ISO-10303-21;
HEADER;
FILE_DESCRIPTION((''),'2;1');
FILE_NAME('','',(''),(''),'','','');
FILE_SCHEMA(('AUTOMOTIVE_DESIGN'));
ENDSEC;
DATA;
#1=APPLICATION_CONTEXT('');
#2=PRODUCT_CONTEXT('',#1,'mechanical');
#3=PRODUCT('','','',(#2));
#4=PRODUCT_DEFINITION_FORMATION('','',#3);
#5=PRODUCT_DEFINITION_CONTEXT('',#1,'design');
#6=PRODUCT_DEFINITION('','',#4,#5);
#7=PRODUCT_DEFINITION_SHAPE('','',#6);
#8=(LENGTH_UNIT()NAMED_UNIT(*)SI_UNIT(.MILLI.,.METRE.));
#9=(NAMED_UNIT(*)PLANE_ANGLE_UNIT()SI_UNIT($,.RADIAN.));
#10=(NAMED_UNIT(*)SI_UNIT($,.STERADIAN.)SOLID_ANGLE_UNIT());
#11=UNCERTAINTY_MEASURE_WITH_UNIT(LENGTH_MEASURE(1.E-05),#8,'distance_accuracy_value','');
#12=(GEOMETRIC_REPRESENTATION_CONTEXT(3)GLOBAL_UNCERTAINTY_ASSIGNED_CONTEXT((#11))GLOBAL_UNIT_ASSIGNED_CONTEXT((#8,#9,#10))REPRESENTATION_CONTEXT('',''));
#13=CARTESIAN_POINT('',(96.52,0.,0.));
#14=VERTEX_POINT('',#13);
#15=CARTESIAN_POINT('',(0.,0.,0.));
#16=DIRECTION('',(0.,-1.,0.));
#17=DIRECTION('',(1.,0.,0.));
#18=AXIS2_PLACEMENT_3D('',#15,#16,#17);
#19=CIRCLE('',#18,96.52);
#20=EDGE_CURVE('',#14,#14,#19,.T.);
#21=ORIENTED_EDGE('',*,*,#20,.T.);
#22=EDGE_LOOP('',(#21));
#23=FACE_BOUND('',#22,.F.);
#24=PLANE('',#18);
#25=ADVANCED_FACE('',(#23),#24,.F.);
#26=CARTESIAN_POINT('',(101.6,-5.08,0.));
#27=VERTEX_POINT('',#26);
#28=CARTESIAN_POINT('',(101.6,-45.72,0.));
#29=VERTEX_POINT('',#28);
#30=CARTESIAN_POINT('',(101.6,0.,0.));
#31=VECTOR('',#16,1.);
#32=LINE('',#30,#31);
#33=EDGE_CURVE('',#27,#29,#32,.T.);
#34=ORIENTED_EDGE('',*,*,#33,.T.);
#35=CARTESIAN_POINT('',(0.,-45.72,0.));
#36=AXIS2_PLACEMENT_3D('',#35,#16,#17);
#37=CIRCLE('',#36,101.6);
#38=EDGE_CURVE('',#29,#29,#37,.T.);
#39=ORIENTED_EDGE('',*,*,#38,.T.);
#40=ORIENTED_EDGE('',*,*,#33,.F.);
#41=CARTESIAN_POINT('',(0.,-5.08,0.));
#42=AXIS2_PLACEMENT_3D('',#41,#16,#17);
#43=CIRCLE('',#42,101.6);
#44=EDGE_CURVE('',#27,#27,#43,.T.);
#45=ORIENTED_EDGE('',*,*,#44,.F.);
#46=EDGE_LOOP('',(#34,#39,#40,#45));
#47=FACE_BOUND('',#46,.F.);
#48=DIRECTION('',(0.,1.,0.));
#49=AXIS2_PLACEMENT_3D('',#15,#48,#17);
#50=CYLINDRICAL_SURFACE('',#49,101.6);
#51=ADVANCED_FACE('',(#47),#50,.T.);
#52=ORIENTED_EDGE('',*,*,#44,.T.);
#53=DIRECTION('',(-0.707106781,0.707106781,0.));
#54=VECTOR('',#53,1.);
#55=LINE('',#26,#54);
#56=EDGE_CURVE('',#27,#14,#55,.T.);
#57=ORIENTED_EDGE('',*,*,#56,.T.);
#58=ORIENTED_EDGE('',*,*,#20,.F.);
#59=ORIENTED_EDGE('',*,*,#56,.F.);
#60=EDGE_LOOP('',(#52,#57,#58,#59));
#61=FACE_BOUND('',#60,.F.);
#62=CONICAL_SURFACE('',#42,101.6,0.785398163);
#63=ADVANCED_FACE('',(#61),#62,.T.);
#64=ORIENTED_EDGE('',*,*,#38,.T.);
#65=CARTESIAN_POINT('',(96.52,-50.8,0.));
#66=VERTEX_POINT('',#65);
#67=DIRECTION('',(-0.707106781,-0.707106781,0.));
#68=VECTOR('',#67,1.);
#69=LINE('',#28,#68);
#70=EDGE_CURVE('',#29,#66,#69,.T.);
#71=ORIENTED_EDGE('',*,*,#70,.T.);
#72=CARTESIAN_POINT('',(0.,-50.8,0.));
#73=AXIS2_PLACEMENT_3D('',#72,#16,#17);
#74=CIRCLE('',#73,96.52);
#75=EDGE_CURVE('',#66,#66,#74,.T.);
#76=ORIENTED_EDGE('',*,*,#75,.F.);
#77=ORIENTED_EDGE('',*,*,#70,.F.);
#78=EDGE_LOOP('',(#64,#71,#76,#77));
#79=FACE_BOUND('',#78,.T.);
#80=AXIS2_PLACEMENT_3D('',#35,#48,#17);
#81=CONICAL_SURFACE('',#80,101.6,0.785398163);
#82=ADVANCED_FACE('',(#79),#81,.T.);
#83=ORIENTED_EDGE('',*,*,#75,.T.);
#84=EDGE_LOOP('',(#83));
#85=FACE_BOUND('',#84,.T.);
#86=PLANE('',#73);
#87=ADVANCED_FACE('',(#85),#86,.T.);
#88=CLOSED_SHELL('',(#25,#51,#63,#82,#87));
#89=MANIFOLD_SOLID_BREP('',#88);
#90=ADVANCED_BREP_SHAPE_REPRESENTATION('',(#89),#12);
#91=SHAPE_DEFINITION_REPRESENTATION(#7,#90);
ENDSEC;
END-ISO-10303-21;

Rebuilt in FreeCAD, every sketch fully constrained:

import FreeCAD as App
import Part
import Sketcher

V = App.Vector
Q = App.Units.Quantity

doc = App.newDocument("Part")
params = doc.addObject("Spreadsheet::Sheet", "Params")
for row, (alias, value) in enumerate([
    ("sketch1_diameter", "8 in"),
    ("pad1_length", "2 in"),
    ("chamfer_size", "0.2 in"),
], start=1):
    params.set(f"A{row}", alias)
    params.set(f"B{row}", "=" + value)
    params.setAlias(f"B{row}", alias)

body = doc.addObject("PartDesign::Body", "Body")

sketch1 = doc.addObject("Sketcher::SketchObject", "Sketch")
body.addObject(sketch1)
sketch1.AttachmentSupport = (doc.XZ_Plane, [""])
sketch1.MapMode = "FlatFace"
sketch1.addGeometry(Part.Circle(V(0, 0, 0), V(0, 0, 1), 101.6), False)
sketch1.addConstraint(Sketcher.Constraint("Coincident", 0, 3, -1, 1))
sketch1.addConstraint(Sketcher.Constraint("Diameter", 0, Q("8 in")))
sketch1.setExpression("Constraints[1]", "Params.sketch1_diameter")
pad1 = doc.addObject("PartDesign::Pad", "Pad")
body.addObject(pad1)
pad1.Profile = sketch1
pad1.setExpression("Length", "Params.pad1_length")
doc.recompute()

chamfer = doc.addObject("PartDesign::Chamfer", "Chamfer")
body.addObject(chamfer)
chamfer.Base = (pad1, ["Edge1"])
chamfer.UseAllEdges = True
chamfer.setExpression("Size", "Params.chamfer_size")

doc.recompute()
